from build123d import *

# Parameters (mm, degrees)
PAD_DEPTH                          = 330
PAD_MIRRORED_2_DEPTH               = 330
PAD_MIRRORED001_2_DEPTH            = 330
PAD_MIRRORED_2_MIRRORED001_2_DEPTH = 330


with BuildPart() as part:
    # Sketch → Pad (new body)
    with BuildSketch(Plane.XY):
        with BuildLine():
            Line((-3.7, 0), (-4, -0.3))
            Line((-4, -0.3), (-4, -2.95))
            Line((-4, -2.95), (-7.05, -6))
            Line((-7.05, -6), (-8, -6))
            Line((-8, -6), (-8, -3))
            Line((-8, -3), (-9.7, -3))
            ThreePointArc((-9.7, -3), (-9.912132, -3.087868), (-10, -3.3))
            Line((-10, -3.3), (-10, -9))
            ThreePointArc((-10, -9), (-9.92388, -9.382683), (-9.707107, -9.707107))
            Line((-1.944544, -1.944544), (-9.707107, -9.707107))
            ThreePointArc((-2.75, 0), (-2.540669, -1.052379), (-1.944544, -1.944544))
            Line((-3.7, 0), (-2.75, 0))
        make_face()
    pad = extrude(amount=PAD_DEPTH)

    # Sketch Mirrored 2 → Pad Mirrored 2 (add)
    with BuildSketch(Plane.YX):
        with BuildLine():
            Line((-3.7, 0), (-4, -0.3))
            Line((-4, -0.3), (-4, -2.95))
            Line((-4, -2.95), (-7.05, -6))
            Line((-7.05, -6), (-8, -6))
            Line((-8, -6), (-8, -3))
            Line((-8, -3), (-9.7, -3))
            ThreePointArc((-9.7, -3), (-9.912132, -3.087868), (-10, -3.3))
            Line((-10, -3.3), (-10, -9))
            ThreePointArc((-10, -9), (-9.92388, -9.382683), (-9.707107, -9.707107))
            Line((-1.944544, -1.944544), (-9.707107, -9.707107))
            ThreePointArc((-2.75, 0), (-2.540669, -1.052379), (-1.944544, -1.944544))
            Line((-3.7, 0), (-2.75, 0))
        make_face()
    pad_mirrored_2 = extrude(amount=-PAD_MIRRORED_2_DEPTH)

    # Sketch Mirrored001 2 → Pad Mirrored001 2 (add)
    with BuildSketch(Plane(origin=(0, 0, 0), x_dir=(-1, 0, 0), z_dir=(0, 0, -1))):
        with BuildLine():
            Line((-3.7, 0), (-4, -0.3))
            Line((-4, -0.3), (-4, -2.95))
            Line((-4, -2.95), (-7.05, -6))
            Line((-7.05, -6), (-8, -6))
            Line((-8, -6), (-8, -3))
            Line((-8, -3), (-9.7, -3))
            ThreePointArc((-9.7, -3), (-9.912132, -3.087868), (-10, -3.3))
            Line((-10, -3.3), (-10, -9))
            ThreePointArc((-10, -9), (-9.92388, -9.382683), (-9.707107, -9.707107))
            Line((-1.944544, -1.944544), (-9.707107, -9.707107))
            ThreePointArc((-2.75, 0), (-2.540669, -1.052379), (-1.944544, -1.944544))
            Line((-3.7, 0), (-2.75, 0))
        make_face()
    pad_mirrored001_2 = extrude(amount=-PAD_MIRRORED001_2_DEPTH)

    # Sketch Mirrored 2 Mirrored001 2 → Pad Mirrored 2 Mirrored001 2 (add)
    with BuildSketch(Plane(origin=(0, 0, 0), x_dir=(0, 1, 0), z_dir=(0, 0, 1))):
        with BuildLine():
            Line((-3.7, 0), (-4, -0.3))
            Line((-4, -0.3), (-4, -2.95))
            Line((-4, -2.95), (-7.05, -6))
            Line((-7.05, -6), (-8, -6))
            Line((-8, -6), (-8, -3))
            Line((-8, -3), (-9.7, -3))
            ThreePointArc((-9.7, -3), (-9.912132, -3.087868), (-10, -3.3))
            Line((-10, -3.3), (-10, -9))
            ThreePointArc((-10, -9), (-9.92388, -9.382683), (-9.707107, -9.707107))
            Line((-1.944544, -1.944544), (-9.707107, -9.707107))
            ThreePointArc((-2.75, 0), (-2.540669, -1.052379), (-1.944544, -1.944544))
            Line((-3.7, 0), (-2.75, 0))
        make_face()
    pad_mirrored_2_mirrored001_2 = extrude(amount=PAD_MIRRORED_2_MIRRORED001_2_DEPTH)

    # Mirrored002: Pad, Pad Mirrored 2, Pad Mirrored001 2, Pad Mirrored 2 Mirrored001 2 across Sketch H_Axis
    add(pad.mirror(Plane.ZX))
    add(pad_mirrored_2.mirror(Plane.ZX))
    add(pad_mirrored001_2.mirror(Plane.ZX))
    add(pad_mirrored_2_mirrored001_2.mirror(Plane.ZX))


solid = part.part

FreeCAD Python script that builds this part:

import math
import FreeCAD as App
import Part
import Sketcher
Q = App.Units.Quantity

doc = App.newDocument("Part")
body = doc.addObject("PartDesign::Body", "Body")
body.AllowCompound = True

# Sketch on XY plane
sketch1 = body.newObject("Sketcher::SketchObject", "Sketch")
sketch1.AttachmentSupport = (doc.getObject("XY_Plane"), [""])
sketch1.MapMode = "FlatFace"
sketch1.addGeometry([
    Part.LineSegment(App.Vector(-3.7, 0, 0), App.Vector(-4, -0.3, 0)),  # 0
    Part.LineSegment(App.Vector(-4, -0.3, 0), App.Vector(-4, -2.95, 0)),  # 1
    Part.LineSegment(App.Vector(-4, -2.95, 0), App.Vector(-7.05, -6, 0)),  # 2
    Part.LineSegment(App.Vector(-7.05, -6, 0), App.Vector(-8, -6, 0)),  # 3
    Part.LineSegment(App.Vector(-8, -6, 0), App.Vector(-8, -3, 0)),  # 4
    Part.LineSegment(App.Vector(-8, -3, 0), App.Vector(-9.7, -3, 0)),  # 5
    Part.ArcOfCircle(Part.Circle(App.Vector(-9.7, -3.3, 0), App.Vector(0, 0, 1), 0.3), math.radians(90), math.radians(180)),  # 6
    Part.LineSegment(App.Vector(-10, -3.3, 0), App.Vector(-10, -9, 0)),  # 7
    Part.ArcOfCircle(Part.Circle(App.Vector(-9, -9, 0), App.Vector(0, 0, 1), 1), math.radians(180), math.radians(225)),  # 8
    Part.LineSegment(App.Vector(-9.71, -9.71, 0), App.Vector(-1.94, -1.94, 0)),  # 9
    Part.ArcOfCircle(Part.Circle(App.Vector(0, 0, 0), App.Vector(0, 0, 1), 2.75), math.radians(-180), math.radians(-135)),  # 10
    Part.LineSegment(App.Vector(-2.75, 0, 0), App.Vector(-3.7, 0, 0)),  # 11
], False)
sketch1.addConstraint([
    Sketcher.Constraint("Coincident", 0, 2, 1, 1),
    Sketcher.Constraint("Coincident", 1, 2, 2, 1),
    Sketcher.Constraint("Coincident", 2, 2, 3, 1),
    Sketcher.Constraint("Coincident", 3, 2, 4, 1),
    Sketcher.Constraint("Coincident", 4, 2, 5, 1),
    Sketcher.Constraint("Tangent", 5, 2, 6, 1),
    Sketcher.Constraint("Tangent", 6, 2, 7, 1),
    Sketcher.Constraint("Tangent", 7, 2, 8, 1),
    Sketcher.Constraint("Coincident", 8, 2, 9, 1),
    Sketcher.Constraint("Coincident", 9, 2, 10, 2),
    Sketcher.Constraint("Coincident", 10, 1, 11, 1),
    Sketcher.Constraint("Coincident", 11, 2, 0, 1),
    Sketcher.Constraint("Vertical", 1),
    Sketcher.Constraint("Horizontal", 3),
    Sketcher.Constraint("Vertical", 4),
    Sketcher.Constraint("Horizontal", 5),
    Sketcher.Constraint("Vertical", 7),
    Sketcher.Constraint("Horizontal", 11),
    Sketcher.Constraint("Coincident", 10, 3, -1, 1),
    Sketcher.Constraint("PointOnObject", 10, 1, -1),
    Sketcher.Constraint("Parallel", 0, 2),
    Sketcher.Constraint("Parallel", 2, 9),
    Sketcher.Constraint("Equal", 3, 11),
    Sketcher.Constraint("Radius", 8, 0.999999),
    Sketcher.Constraint("Radius", 6, 0.3),
    Sketcher.Constraint("DistanceY", 4, 1, 4, 2, 3.0),
    Sketcher.Constraint("Angle", 0, Q("-135 deg")),
    Sketcher.Constraint("DistanceX", 5, 2, 5, 1, 1.7),
    Sketcher.Constraint("DistanceY", 7, 2, 7, 1, 5.7),
    Sketcher.Constraint("DistanceX", 8, 3, -1, 1, 9.000001),
    Sketcher.Constraint("DistanceY", 8, 3, -1, 1, 9.000001),
    Sketcher.Constraint("DistanceX", 0, 2, -1, 1, 4.0),
    Sketcher.Constraint("DistanceY", 6, 3, 0, 2, 3.0),
    Sketcher.Constraint("DistanceX", 3, 2, 3, 1, 0.95),
    Sketcher.Constraint("DistanceX", 8, 2, -1, 1, 9.707107),
])
pad1 = body.newObject("PartDesign::Pad", "Pad")
pad1.Profile = sketch1
pad1.Length = 330

# Sketch on XY plane
sketch2 = body.newObject("Sketcher::SketchObject", "Sketch001")
sketch2.AttachmentSupport = (doc.getObject("XY_Plane"), [""])
sketch2.MapMode = "FlatFace"
sketch2.addGeometry([
    Part.LineSegment(App.Vector(0, -3.7, 0), App.Vector(-0.3, -4, 0)),  # 0
    Part.LineSegment(App.Vector(-0.3, -4, 0), App.Vector(-2.95, -4, 0)),  # 1
    Part.LineSegment(App.Vector(-2.95, -4, 0), App.Vector(-6, -7.05, 0)),  # 2
    Part.LineSegment(App.Vector(-6, -7.05, 0), App.Vector(-6, -8, 0)),  # 3
    Part.LineSegment(App.Vector(-6, -8, 0), App.Vector(-3, -8, 0)),  # 4
    Part.LineSegment(App.Vector(-3, -8, 0), App.Vector(-3, -9.7, 0)),  # 5
    Part.ArcOfCircle(Part.Circle(App.Vector(-3.3, -9.7, 0), App.Vector(0, 0, 1), 0.3), math.radians(-90), math.radians(0)),  # 6
    Part.LineSegment(App.Vector(-3.3, -10, 0), App.Vector(-9, -10, 0)),  # 7
    Part.ArcOfCircle(Part.Circle(App.Vector(-9, -9, 0), App.Vector(0, 0, 1), 1), math.radians(-135), math.radians(-90)),  # 8
    Part.LineSegment(App.Vector(-9.71, -9.71, 0), App.Vector(-1.94, -1.94, 0)),  # 9
    Part.ArcOfCircle(Part.Circle(App.Vector(0, 0, 0), App.Vector(0, 0, 1), 2.75), math.radians(-135), math.radians(-90)),  # 10
    Part.LineSegment(App.Vector(0, -2.75, 0), App.Vector(0, -3.7, 0)),  # 11
], False)
sketch2.addConstraint([
    Sketcher.Constraint("Coincident", 0, 2, 1, 1),
    Sketcher.Constraint("Coincident", 1, 2, 2, 1),
    Sketcher.Constraint("Coincident", 2, 2, 3, 1),
    Sketcher.Constraint("Coincident", 3, 2, 4, 1),
    Sketcher.Constraint("Coincident", 4, 2, 5, 1),
    Sketcher.Constraint("Tangent", 5, 2, 6, 2),
    Sketcher.Constraint("Tangent", 6, 1, 7, 1),
    Sketcher.Constraint("Tangent", 7, 2, 8, 2),
    Sketcher.Constraint("Coincident", 8, 1, 9, 1),
    Sketcher.Constraint("Coincident", 9, 2, 10, 1),
    Sketcher.Constraint("Coincident", 10, 2, 11, 1),
    Sketcher.Constraint("Coincident", 11, 2, 0, 1),
    Sketcher.Constraint("Horizontal", 1),
    Sketcher.Constraint("Vertical", 3),
    Sketcher.Constraint("Horizontal", 4),
    Sketcher.Constraint("Vertical", 5),
    Sketcher.Constraint("Horizontal", 7),
    Sketcher.Constraint("Vertical", 11),
    Sketcher.Constraint("Coincident", 10, 3, -1, 1),
    Sketcher.Constraint("PointOnObject", 10, 2, -2),
    Sketcher.Constraint("Parallel", 0, 2),
    Sketcher.Constraint("Parallel", 2, 9),
    Sketcher.Constraint("Equal", 3, 11),
    Sketcher.Constraint("Radius", 8, 0.999999),
    Sketcher.Constraint("Radius", 6, 0.3),
    Sketcher.Constraint("DistanceX", 4, 1, 4, 2, 3.0),
    Sketcher.Constraint("Angle", 0, Q("-135 deg")),
    Sketcher.Constraint("DistanceX", 7, 2, 7, 1, 5.7),
    Sketcher.Constraint("DistanceY", 5, 2, 5, 1, 1.7),
    Sketcher.Constraint("DistanceX", 8, 3, -1, 1, 9.000001),
    Sketcher.Constraint("DistanceY", 8, 3, -1, 1, 9.000001),
    Sketcher.Constraint("DistanceY", 0, 2, -1, 1, 4.0),
    Sketcher.Constraint("DistanceX", 6, 3, 0, 2, 3.0),
    Sketcher.Constraint("DistanceX", 1, 2, 1, 1, 2.65),
    Sketcher.Constraint("DistanceX", 8, 1, -1, 1, 9.707107),
])
pad2 = body.newObject("PartDesign::Pad", "Pad001")
pad2.Profile = sketch2
pad2.Length = 330

# Sketch on XY plane
sketch3 = body.newObject("Sketcher::SketchObject", "Sketch002")
sketch3.AttachmentSupport = (doc.getObject("XY_Plane"), [""])
sketch3.MapMode = "FlatFace"
sketch3.addGeometry([
    Part.LineSegment(App.Vector(3.7, 0, 0), App.Vector(4, -0.3, 0)),  # 0
    Part.LineSegment(App.Vector(4, -0.3, 0), App.Vector(4, -2.95, 0)),  # 1
    Part.LineSegment(App.Vector(4, -2.95, 0), App.Vector(7.05, -6, 0)),  # 2
    Part.LineSegment(App.Vector(7.05, -6, 0), App.Vector(8, -6, 0)),  # 3
    Part.LineSegment(App.Vector(8, -6, 0), App.Vector(8, -3, 0)),  # 4
    Part.LineSegment(App.Vector(8, -3, 0), App.Vector(9.7, -3, 0)),  # 5
    Part.ArcOfCircle(Part.Circle(App.Vector(9.7, -3.3, 0), App.Vector(0, 0, 1), 0.3), math.radians(0), math.radians(90)),  # 6
    Part.LineSegment(App.Vector(10, -3.3, 0), App.Vector(10, -9, 0)),  # 7
    Part.ArcOfCircle(Part.Circle(App.Vector(9, -9, 0), App.Vector(0, 0, 1), 1), math.radians(-45), math.radians(0)),  # 8
    Part.LineSegment(App.Vector(9.71, -9.71, 0), App.Vector(1.94, -1.94, 0)),  # 9
    Part.ArcOfCircle(Part.Circle(App.Vector(0, 0, 0), App.Vector(0, 0, 1), 2.75), math.radians(-45), math.radians(0)),  # 10
    Part.LineSegment(App.Vector(2.75, 0, 0), App.Vector(3.7, 0, 0)),  # 11
], False)
sketch3.addConstraint([
    Sketcher.Constraint("Coincident", 0, 2, 1, 1),
    Sketcher.Constraint("Coincident", 1, 2, 2, 1),
    Sketcher.Constraint("Coincident", 2, 2, 3, 1),
    Sketcher.Constraint("Coincident", 3, 2, 4, 1),
    Sketcher.Constraint("Coincident", 4, 2, 5, 1),
    Sketcher.Constraint("Tangent", 5, 2, 6, 2),
    Sketcher.Constraint("Tangent", 6, 1, 7, 1),
    Sketcher.Constraint("Tangent", 7, 2, 8, 2),
    Sketcher.Constraint("Coincident", 8, 1, 9, 1),
    Sketcher.Constraint("Coincident", 9, 2, 10, 1),
    Sketcher.Constraint("Coincident", 10, 2, 11, 1),
    Sketcher.Constraint("Coincident", 11, 2, 0, 1),
    Sketcher.Constraint("Vertical", 1),
    Sketcher.Constraint("Horizontal", 3),
    Sketcher.Constraint("Vertical", 4),
    Sketcher.Constraint("Horizontal", 5),
    Sketcher.Constraint("Vertical", 7),
    Sketcher.Constraint("Horizontal", 11),
    Sketcher.Constraint("Coincident", 10, 3, -1, 1),
    Sketcher.Constraint("PointOnObject", 10, 2, -1),
    Sketcher.Constraint("Parallel", 0, 2),
    Sketcher.Constraint("Parallel", 2, 9),
    Sketcher.Constraint("Equal", 3, 11),
    Sketcher.Constraint("Radius", 8, 0.999999),
    Sketcher.Constraint("Radius", 6, 0.3),
    Sketcher.Constraint("DistanceY", 4, 1, 4, 2, 3.0),
    Sketcher.Constraint("Angle", 0, Q("-45 deg")),
    Sketcher.Constraint("DistanceX", 5, 1, 5, 2, 1.7),
    Sketcher.Constraint("DistanceY", 7, 2, 7, 1, 5.7),
    Sketcher.Constraint("DistanceX", -1, 1, 8, 3, 9.000001),
    Sketcher.Constraint("DistanceY", 8, 3, -1, 1, 9.000001),
    Sketcher.Constraint("DistanceX", -1, 1, 0, 2, 4.0),
    Sketcher.Constraint("DistanceY", 6, 3, 0, 2, 3.0),
    Sketcher.Constraint("DistanceX", 3, 1, 3, 2, 0.95),
    Sketcher.Constraint("DistanceX", -1, 1, 8, 1, 9.707107),
])
pad3 = body.newObject("PartDesign::Pad", "Pad002")
pad3.Profile = sketch3
pad3.Length = 330

# Sketch on XY plane
sketch4 = body.newObject("Sketcher::SketchObject", "Sketch003")
sketch4.AttachmentSupport = (doc.getObject("XY_Plane"), [""])
sketch4.MapMode = "FlatFace"
sketch4.addGeometry([
    Part.LineSegment(App.Vector(0, -3.7, 0), App.Vector(0.3, -4, 0)),  # 0
    Part.LineSegment(App.Vector(0.3, -4, 0), App.Vector(2.95, -4, 0)),  # 1
    Part.LineSegment(App.Vector(2.95, -4, 0), App.Vector(6, -7.05, 0)),  # 2
    Part.LineSegment(App.Vector(6, -7.05, 0), App.Vector(6, -8, 0)),  # 3
    Part.LineSegment(App.Vector(6, -8, 0), App.Vector(3, -8, 0)),  # 4
    Part.LineSegment(App.Vector(3, -8, 0), App.Vector(3, -9.7, 0)),  # 5
    Part.ArcOfCircle(Part.Circle(App.Vector(3.3, -9.7, 0), App.Vector(0, 0, 1), 0.3), math.radians(-180), math.radians(-90)),  # 6
    Part.LineSegment(App.Vector(3.3, -10, 0), App.Vector(9, -10, 0)),  # 7
    Part.ArcOfCircle(Part.Circle(App.Vector(9, -9, 0), App.Vector(0, 0, 1), 1), math.radians(-90), math.radians(-45)),  # 8
    Part.LineSegment(App.Vector(9.71, -9.71, 0), App.Vector(1.94, -1.94, 0)),  # 9
    Part.ArcOfCircle(Part.Circle(App.Vector(0, 0, 0), App.Vector(0, 0, 1), 2.75), math.radians(-90), math.radians(-45)),  # 10
    Part.LineSegment(App.Vector(0, -2.75, 0), App.Vector(0, -3.7, 0)),  # 11
], False)
sketch4.addConstraint([
    Sketcher.Constraint("Coincident", 0, 2, 1, 1),
    Sketcher.Constraint("Coincident", 1, 2, 2, 1),
    Sketcher.Constraint("Coincident", 2, 2, 3, 1),
    Sketcher.Constraint("Coincident", 3, 2, 4, 1),
    Sketcher.Constraint("Coincident", 4, 2, 5, 1),
    Sketcher.Constraint("Tangent", 5, 2, 6, 1),
    Sketcher.Constraint("Tangent", 6, 2, 7, 1),
    Sketcher.Constraint("Tangent", 7, 2, 8, 1),
    Sketcher.Constraint("Coincident", 8, 2, 9, 1),
    Sketcher.Constraint("Coincident", 9, 2, 10, 2),
    Sketcher.Constraint("Coincident", 10, 1, 11, 1),
    Sketcher.Constraint("Coincident", 11, 2, 0, 1),
    Sketcher.Constraint("Horizontal", 1),
    Sketcher.Constraint("Vertical", 3),
    Sketcher.Constraint("Horizontal", 4),
    Sketcher.Constraint("Vertical", 5),
    Sketcher.Constraint("Horizontal", 7),
    Sketcher.Constraint("Vertical", 11),
    Sketcher.Constraint("Coincident", 10, 3, -1, 1),
    Sketcher.Constraint("PointOnObject", 10, 1, -2),
    Sketcher.Constraint("Parallel", 0, 2),
    Sketcher.Constraint("Parallel", 2, 9),
    Sketcher.Constraint("Equal", 3, 11),
    Sketcher.Constraint("Radius", 8, 0.999999),
    Sketcher.Constraint("Radius", 6, 0.3),
    Sketcher.Constraint("DistanceX", 4, 2, 4, 1, 3.0),
    Sketcher.Constraint("Angle", 0, Q("-45 deg")),
    Sketcher.Constraint("DistanceX", 7, 1, 7, 2, 5.7),
    Sketcher.Constraint("DistanceY", 5, 2, 5, 1, 1.7),
    Sketcher.Constraint("DistanceX", -1, 1, 8, 3, 9.000001),
    Sketcher.Constraint("DistanceY", 8, 3, -1, 1, 9.000001),
    Sketcher.Constraint("DistanceY", 0, 2, -1, 1, 4.0),
    Sketcher.Constraint("DistanceX", 0, 2, 6, 3, 3.0),
    Sketcher.Constraint("DistanceX", 1, 1, 1, 2, 2.65),
    Sketcher.Constraint("DistanceX", -1, 1, 8, 2, 9.707107),
])
pad4 = body.newObject("PartDesign::Pad", "Pad003")
pad4.Profile = sketch4
pad4.Length = 330
doc.recompute()

mirrored = body.newObject("PartDesign::Mirrored", "Mirrored")
mirrored.Originals = [pad1, pad2, pad3, pad4]
mirrored.MirrorPlane = (doc.getObject("XZ_Plane"), [""])
body.Tip = mirrored

doc.recompute()
